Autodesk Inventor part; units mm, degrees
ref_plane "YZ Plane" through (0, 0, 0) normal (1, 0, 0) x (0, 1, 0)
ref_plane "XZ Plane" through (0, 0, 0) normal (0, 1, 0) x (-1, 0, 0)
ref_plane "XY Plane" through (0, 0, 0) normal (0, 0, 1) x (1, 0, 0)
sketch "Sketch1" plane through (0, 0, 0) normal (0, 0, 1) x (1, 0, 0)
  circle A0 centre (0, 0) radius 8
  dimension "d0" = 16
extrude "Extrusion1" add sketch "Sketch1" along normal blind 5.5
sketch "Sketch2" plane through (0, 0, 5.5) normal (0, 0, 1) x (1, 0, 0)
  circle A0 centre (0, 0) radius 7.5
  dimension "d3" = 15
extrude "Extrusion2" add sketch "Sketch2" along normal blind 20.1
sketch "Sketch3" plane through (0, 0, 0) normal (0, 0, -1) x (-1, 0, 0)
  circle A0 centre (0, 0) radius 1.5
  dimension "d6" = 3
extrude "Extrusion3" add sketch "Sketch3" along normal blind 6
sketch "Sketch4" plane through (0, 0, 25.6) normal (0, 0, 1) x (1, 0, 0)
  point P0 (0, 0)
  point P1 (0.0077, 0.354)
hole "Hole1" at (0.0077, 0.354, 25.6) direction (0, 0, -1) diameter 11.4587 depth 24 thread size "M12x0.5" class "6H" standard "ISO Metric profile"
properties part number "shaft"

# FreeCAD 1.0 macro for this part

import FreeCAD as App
import Part
import Sketcher

V = App.Vector
Q = App.Units.Quantity

doc = App.newDocument("Part")
body = doc.addObject("PartDesign::Body", "Body")

# Sketch on XY plane
sketch1 = doc.addObject("Sketcher::SketchObject", "Sketch")
body.addObject(sketch1)
sketch1.AttachmentSupport = (doc.XY_Plane, [""])
sketch1.MapMode = "FlatFace"
sketch1.addGeometry(Part.Circle(V(0, 0, 0), V(0, 0, 1), 8), False)
sketch1.addConstraint([
    Sketcher.Constraint("Coincident", 0, 3, -1, 1),
    Sketcher.Constraint("Diameter", 0, Q("16 mm")),
])
pad1 = doc.addObject("PartDesign::Pad", "Pad")
body.addObject(pad1)
pad1.Profile = sketch1
pad1.Length = 5.5

# Sketch on XY plane
sketch2 = doc.addObject("Sketcher::SketchObject", "Sketch001")
body.addObject(sketch2)
sketch2.AttachmentSupport = (doc.XY_Plane, [""])
sketch2.MapMode = "FlatFace"
sketch2.AttachmentOffset = App.Placement(V(0, 0, 5.5), App.Rotation())
sketch2.addGeometry(Part.Circle(V(0, 0, 0), V(0, 0, 1), 8), False)
sketch2.addConstraint([
    Sketcher.Constraint("Coincident", 0, 3, -1, 1),
    Sketcher.Constraint("Diameter", 0, Q("15 mm")),
])
pad2 = doc.addObject("PartDesign::Pad", "Pad001")
body.addObject(pad2)
pad2.Profile = sketch2
pad2.Length = 20.1

# Sketch on XY plane
sketch3 = doc.addObject("Sketcher::SketchObject", "Sketch002")
body.addObject(sketch3)
sketch3.AttachmentSupport = (doc.XY_Plane, [""])
sketch3.MapMode = "FlatFace"
sketch3.addGeometry(Part.Circle(V(0, 0, 0), V(0, 0, 1), 1.5), False)
sketch3.addConstraint([
    Sketcher.Constraint("Coincident", 0, 3, -1, 1),
    Sketcher.Constraint("Diameter", 0, Q("3 mm")),
])
pad3 = doc.addObject("PartDesign::Pad", "Pad002")
body.addObject(pad3)
pad3.Profile = sketch3
pad3.Length = 6
pad3.Reversed = True

# Sketch on XY plane
sketch4 = doc.addObject("Sketcher::SketchObject", "Sketch003")
body.addObject(sketch4)
sketch4.AttachmentSupport = (doc.XY_Plane, [""])
sketch4.MapMode = "FlatFace"
sketch4.AttachmentOffset = App.Placement(V(0, 0, 25.6), App.Rotation())
sketch4.addGeometry(Part.Circle(V(0, 0, 0), V(0, 0, 1), 6), False)
sketch4.addConstraint([
    Sketcher.Constraint("Diameter", 0, Q("11.4587 mm")),
    Sketcher.Constraint("DistanceY", -1, 1, 0, 3, Q("0.354 mm")),
    Sketcher.Constraint("DistanceX", -1, 1, 0, 3, Q("0.0077 mm")),
])
doc.recompute()
hole = doc.addObject("PartDesign::Hole", "Hole")
body.addObject(hole)
hole.Profile = sketch4
hole.ThreadType = "None"
hole.Diameter = 11.4587
hole.DepthType = "Dimension"
hole.Depth = 24
hole.DrillPoint = "Flat"

doc.recompute()
